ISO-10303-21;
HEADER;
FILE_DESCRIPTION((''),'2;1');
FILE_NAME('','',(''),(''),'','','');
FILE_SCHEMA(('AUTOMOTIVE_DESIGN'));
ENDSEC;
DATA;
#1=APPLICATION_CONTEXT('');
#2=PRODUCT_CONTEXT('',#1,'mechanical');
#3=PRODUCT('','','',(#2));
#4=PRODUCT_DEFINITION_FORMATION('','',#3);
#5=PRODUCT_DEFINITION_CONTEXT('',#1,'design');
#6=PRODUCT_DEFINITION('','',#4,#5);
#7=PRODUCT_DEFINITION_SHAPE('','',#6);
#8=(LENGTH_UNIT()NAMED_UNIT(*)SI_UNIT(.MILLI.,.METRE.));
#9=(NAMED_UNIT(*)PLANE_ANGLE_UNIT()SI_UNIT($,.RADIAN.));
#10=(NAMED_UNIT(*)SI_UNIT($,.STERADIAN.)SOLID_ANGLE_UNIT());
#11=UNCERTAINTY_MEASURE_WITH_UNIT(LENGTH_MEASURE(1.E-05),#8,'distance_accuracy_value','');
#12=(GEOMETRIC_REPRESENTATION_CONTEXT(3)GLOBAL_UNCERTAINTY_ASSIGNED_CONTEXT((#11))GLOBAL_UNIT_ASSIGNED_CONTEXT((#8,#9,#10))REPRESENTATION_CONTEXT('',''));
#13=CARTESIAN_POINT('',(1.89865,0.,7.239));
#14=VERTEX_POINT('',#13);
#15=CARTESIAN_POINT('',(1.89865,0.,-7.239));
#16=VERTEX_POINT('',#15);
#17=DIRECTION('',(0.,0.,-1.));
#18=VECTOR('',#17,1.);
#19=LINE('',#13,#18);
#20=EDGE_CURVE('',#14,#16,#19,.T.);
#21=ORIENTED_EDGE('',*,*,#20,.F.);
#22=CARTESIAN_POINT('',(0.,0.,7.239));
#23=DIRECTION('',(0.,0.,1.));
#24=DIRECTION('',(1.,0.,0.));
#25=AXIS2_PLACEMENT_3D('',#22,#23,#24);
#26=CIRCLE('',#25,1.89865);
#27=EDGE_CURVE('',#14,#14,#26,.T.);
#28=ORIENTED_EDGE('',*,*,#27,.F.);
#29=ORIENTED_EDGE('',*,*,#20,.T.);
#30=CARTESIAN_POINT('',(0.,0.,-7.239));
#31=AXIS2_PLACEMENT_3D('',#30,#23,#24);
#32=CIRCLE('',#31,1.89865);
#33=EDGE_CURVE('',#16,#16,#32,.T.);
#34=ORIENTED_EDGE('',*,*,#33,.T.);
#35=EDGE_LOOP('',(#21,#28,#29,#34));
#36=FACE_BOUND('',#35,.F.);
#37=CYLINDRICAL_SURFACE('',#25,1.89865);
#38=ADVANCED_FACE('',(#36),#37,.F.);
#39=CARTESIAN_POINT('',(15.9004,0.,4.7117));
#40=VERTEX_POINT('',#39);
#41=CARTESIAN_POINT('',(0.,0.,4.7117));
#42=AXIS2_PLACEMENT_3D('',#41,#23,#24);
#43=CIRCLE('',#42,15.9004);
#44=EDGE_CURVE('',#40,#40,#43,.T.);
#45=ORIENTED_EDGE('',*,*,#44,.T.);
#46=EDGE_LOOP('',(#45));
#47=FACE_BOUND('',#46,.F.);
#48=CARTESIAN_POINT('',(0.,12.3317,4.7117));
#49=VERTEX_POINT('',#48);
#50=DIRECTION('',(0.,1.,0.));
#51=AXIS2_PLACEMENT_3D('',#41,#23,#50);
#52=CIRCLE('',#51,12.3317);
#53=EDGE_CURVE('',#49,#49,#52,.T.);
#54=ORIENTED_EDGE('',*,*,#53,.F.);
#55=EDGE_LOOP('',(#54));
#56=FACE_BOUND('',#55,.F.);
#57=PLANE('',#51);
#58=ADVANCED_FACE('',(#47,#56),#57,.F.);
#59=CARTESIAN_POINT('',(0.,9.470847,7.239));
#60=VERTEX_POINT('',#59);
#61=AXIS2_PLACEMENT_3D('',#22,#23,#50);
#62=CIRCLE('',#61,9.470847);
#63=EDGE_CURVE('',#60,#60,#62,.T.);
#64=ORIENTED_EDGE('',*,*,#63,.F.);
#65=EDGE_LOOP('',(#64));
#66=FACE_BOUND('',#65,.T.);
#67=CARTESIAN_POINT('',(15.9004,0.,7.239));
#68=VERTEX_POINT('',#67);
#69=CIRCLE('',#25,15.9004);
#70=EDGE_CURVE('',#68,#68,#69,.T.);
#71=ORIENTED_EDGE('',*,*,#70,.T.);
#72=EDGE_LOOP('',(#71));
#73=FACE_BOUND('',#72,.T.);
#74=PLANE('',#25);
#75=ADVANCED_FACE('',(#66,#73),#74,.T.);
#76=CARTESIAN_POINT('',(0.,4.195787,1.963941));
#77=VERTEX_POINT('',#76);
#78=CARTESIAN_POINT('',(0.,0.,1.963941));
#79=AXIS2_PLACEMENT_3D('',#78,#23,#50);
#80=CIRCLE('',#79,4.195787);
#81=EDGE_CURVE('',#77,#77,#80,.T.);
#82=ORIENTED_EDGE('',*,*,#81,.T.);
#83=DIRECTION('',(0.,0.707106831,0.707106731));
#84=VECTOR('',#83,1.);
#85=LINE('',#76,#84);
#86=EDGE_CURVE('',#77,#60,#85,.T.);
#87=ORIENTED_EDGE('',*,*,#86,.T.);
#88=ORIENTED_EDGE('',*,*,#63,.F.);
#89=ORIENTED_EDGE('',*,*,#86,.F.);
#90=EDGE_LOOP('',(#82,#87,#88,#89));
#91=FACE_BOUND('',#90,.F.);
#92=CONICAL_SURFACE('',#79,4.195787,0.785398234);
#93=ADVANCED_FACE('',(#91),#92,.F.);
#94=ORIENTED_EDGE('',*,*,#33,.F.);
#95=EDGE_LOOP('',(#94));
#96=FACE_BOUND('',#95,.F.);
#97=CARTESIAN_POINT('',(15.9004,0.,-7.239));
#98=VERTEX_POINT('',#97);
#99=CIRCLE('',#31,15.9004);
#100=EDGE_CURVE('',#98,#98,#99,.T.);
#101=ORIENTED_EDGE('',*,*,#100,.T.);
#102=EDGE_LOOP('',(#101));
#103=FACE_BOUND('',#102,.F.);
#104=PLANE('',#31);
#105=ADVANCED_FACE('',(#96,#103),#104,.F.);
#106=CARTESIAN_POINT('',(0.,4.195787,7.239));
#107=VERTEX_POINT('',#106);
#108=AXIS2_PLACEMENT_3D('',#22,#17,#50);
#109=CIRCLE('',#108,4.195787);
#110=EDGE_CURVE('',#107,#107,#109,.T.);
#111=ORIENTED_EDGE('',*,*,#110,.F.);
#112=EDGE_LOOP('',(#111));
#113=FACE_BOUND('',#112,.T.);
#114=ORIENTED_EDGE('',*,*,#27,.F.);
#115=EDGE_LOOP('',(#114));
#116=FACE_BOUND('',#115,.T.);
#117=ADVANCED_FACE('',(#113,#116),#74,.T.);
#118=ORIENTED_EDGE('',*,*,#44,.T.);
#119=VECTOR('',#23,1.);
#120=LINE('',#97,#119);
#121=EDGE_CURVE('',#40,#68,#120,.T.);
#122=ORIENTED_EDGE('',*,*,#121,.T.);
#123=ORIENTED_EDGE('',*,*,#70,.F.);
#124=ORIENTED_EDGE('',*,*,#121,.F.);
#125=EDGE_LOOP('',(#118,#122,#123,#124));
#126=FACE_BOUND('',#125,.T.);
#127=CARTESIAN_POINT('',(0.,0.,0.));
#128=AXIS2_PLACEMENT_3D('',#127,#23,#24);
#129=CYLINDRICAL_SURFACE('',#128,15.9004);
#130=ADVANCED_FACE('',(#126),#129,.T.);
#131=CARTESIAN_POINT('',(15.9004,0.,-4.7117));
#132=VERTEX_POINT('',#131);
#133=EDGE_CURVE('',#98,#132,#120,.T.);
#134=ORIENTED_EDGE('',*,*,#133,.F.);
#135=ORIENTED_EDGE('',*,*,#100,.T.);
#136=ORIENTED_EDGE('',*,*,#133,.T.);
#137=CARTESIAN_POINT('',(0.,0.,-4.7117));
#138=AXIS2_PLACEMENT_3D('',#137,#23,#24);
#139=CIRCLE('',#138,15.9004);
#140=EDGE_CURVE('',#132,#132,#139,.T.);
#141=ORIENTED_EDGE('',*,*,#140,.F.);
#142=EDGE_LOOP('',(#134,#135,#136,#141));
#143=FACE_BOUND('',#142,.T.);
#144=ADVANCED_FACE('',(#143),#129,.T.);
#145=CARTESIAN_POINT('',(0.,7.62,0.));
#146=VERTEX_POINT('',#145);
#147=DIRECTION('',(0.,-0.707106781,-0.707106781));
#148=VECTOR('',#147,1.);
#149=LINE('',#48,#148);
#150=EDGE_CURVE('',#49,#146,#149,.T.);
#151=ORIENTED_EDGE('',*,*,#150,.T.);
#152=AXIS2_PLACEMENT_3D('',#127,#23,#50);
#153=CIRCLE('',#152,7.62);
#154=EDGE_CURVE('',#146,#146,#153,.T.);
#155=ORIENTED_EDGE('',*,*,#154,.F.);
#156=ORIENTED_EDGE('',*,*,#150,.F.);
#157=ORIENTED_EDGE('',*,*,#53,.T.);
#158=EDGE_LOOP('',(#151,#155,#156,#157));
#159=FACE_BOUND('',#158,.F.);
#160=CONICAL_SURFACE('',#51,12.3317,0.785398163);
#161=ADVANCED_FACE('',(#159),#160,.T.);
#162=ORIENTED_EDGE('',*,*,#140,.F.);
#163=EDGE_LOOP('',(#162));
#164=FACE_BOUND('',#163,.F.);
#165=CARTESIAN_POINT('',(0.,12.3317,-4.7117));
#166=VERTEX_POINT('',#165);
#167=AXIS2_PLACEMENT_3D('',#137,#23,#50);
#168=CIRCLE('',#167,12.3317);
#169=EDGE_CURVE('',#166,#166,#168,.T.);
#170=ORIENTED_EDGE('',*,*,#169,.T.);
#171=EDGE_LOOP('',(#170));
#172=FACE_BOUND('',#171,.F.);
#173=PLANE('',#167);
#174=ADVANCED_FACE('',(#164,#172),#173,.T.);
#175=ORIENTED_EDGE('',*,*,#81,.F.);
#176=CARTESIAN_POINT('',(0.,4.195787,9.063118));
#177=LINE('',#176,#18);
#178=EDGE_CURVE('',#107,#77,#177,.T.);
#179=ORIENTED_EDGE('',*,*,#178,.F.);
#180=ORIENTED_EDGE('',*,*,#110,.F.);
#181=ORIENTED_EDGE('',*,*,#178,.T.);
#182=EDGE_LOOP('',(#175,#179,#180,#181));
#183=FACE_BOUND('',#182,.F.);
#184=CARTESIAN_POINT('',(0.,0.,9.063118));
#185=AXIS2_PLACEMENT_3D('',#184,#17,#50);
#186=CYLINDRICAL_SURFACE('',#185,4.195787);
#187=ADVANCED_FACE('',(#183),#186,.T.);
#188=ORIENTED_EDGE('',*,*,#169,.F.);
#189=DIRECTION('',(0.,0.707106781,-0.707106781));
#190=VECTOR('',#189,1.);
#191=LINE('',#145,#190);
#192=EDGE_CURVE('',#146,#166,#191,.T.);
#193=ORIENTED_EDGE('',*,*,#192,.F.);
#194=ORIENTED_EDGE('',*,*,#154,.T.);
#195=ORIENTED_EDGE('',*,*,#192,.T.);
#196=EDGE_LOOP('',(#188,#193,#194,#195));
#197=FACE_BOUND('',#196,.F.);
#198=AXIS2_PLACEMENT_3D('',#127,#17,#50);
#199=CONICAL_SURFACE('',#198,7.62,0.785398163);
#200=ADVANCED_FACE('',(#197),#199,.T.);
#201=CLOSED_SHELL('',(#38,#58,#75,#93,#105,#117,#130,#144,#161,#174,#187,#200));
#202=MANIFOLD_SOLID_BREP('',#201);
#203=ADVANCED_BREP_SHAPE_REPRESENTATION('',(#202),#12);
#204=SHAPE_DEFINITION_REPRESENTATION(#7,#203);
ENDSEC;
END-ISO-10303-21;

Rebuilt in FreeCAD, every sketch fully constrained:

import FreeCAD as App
import Part
import Sketcher
Q = App.Units.Quantity

doc = App.newDocument("Part")
body = doc.addObject("PartDesign::Body", "Body")

sketch1 = doc.addObject("Sketcher::SketchObject", "Sketch")
body.addObject(sketch1)
sketch1.AttachmentSupport = (doc.XY_Plane, [""])
sketch1.MapMode = "FlatFace"
sketch1.addGeometry(Part.Circle(App.Vector(0, 0, 0), App.Vector(0, 0, 1), 16), False)
sketch1.addConstraint(Sketcher.Constraint("Coincident", 0, 3, -1, 1))
sketch1.addConstraint(Sketcher.Constraint("Diameter", 0, Q("1.252 in")))
pad1 = doc.addObject("PartDesign::Pad", "Pad")
body.addObject(pad1)
pad1.Profile = sketch1
pad1.Length = Q("0.57 in")
pad1.Midplane = True

sketch2 = doc.addObject("Sketcher::SketchObject", "Sketch001")
body.addObject(sketch2)
sketch2.AttachmentSupport = (doc.XY_Plane, [""])
sketch2.MapMode = "FlatFace"
sketch2.AttachmentOffset = App.Placement(App.Vector(0, 0, 0.285 * 25.4), App.Rotation())
sketch2.addGeometry(Part.Circle(App.Vector(0, 0, 0), App.Vector(0, 0, 1), 1.9), False)
sketch2.addConstraint(Sketcher.Constraint("Coincident", 0, 3, -1, 1))
sketch2.addConstraint(Sketcher.Constraint("Diameter", 0, Q("0.1495 in")))
pocket1 = doc.addObject("PartDesign::Pocket", "Pocket")
body.addObject(pocket1)
pocket1.Profile = sketch2
pocket1.Type = "ThroughAll"

sketch3 = doc.addObject("Sketcher::SketchObject", "Sketch002")
body.addObject(sketch3)
sketch3.AttachmentSupport = (doc.YZ_Plane, [""])
sketch3.MapMode = "FlatFace"
sketch3.addGeometry(Part.LineSegment(App.Vector(20, -5, 0), App.Vector(20, 5, 0)), False)
sketch3.addGeometry(Part.LineSegment(App.Vector(20, 5, 0), App.Vector(12, 5, 0)), False)
sketch3.addGeometry(Part.LineSegment(App.Vector(12, 5, 0), App.Vector(8, 0, 0)), False)
sketch3.addGeometry(Part.LineSegment(App.Vector(8, 0, 0), App.Vector(12, -5, 0)), False)
sketch3.addGeometry(Part.LineSegment(App.Vector(12, -5, 0), App.Vector(20, -5, 0)), False)
sketch3.addGeometry(Part.LineSegment(App.Vector(11, 9, 0), App.Vector(4, 9, 0)), False)
sketch3.addGeometry(Part.LineSegment(App.Vector(4, 9, 0), App.Vector(4, 2, 0)), False)
sketch3.addGeometry(Part.LineSegment(App.Vector(4, 2, 0), App.Vector(11, 9, 0)), False)
sketch3.addConstraint(Sketcher.Constraint("Coincident", 0, 2, 1, 1))
sketch3.addConstraint(Sketcher.Constraint("Coincident", 1, 2, 2, 1))
sketch3.addConstraint(Sketcher.Constraint("Coincident", 2, 2, 3, 1))
sketch3.addConstraint(Sketcher.Constraint("Coincident", 3, 2, 4, 1))
sketch3.addConstraint(Sketcher.Constraint("Coincident", 4, 2, 0, 1))
sketch3.addConstraint(Sketcher.Constraint("Coincident", 5, 2, 6, 1))
sketch3.addConstraint(Sketcher.Constraint("Coincident", 6, 2, 7, 1))
sketch3.addConstraint(Sketcher.Constraint("Coincident", 7, 2, 5, 1))
sketch3.addConstraint(Sketcher.Constraint("Vertical", 0))
sketch3.addConstraint(Sketcher.Constraint("Horizontal", 1))
sketch3.addConstraint(Sketcher.Constraint("Horizontal", 4))
sketch3.addConstraint(Sketcher.Constraint("Horizontal", 5))
sketch3.addConstraint(Sketcher.Constraint("Vertical", 6))
sketch3.addConstraint(Sketcher.Constraint("Symmetric", 1, 2, 3, 2, -1))
sketch3.addConstraint(Sketcher.Constraint("PointOnObject", 2, 2, -1))
sketch3.addConstraint(Sketcher.Constraint("Perpendicular", 2, 3))
sketch3.addConstraint(Sketcher.Constraint("Perpendicular", 3, 7))
sketch3.addConstraint(Sketcher.Constraint("DistanceX", -1, 1, 2, 2, Q("0.3 in")))
sketch3.addConstraint(Sketcher.Constraint("DistanceY", 0, 1, 0, 2, Q("0.371 in")))
sketch3.addConstraint(Sketcher.Constraint("DistanceX", 1, 2, 1, 1, Q("8.070263 mm")))
sketch3.addConstraint(Sketcher.Constraint("DistanceX", 5, 2, 5, 1, Q("7.099178 mm")))
sketch3.addConstraint(Sketcher.Constraint("DistanceY", -1, 1, 6, 2, Q("1.963941 mm")))
sketch3.addConstraint(Sketcher.Constraint("DistanceX", -1, 1, 5, 2, Q("4.195787 mm")))
groove = doc.addObject("PartDesign::Groove", "Groove")
body.addObject(groove)
groove.Profile = sketch3
groove.ReferenceAxis = (sketch3, ["V_Axis"])
groove.Angle = 360

doc.recompute()
